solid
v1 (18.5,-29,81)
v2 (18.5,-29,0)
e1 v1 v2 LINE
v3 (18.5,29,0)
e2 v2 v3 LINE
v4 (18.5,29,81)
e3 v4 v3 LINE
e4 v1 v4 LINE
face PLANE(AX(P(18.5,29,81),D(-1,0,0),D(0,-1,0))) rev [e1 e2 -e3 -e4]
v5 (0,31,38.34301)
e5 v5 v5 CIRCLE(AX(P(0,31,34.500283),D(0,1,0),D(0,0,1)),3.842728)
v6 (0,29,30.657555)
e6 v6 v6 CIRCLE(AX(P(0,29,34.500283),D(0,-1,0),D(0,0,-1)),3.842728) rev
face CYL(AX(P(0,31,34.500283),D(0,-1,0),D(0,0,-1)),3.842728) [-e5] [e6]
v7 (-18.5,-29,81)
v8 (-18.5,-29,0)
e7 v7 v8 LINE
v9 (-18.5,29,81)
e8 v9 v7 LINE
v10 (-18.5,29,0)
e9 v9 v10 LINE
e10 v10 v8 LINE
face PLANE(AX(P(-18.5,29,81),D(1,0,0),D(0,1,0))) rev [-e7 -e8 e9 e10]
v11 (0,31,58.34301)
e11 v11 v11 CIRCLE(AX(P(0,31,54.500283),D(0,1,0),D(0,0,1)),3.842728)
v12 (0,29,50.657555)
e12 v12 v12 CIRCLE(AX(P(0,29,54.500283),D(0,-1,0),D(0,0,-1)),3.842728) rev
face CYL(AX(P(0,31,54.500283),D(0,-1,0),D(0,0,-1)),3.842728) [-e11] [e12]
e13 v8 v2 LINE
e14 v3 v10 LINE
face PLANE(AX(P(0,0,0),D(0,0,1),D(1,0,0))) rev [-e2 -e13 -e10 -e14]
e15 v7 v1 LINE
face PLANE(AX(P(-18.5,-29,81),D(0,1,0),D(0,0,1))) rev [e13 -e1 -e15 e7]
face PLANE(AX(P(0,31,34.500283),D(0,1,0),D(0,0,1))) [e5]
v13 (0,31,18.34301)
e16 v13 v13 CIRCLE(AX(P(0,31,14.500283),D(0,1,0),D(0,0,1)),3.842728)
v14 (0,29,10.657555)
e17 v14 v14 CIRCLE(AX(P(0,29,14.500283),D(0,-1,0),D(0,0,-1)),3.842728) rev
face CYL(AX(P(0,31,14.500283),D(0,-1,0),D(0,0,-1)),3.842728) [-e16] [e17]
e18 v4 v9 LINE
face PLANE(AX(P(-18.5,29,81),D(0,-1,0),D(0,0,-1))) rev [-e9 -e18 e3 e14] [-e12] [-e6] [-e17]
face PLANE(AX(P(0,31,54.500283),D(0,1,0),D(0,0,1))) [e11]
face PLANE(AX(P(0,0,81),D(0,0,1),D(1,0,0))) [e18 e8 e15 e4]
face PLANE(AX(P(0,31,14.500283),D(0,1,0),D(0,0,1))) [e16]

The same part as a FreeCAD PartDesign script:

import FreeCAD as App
import Part
import Sketcher

V = App.Vector
Q = App.Units.Quantity


def add_polygon(sketch, points):
    """Adds a closed chain of lines whose ends are joined by coincident constraints."""
    first, n = sketch.GeometryCount, len(points)
    for a, b in zip(points, points[1:] + points[:1]):
        sketch.addGeometry(Part.LineSegment(App.Vector(*a, 0), App.Vector(*b, 0)), False)
    for i in range(n):
        sketch.addConstraint(Sketcher.Constraint("Coincident", first + i, 2, first + (i + 1) % n, 1))

doc = App.newDocument("Part")
params = doc.addObject("Spreadsheet::Sheet", "Params")
for row, (alias, value) in enumerate([
    ("sketch1_width", "37 mm"),
    ("sketch1_height", "58 mm"),
    ("pad1_length", "81 mm"),
    ("pad2_length", "2 mm"),
], start=1):
    params.set(f"A{row}", alias)
    params.set(f"B{row}", "=" + value)
    params.setAlias(f"B{row}", alias)

body = doc.addObject("PartDesign::Body", "Body")

# Sketch on XY plane
sketch1 = body.newObject("Sketcher::SketchObject", "Sketch")
sketch1.AttachmentSupport = (doc.getObject("XY_Plane"), [""])
sketch1.MapMode = "FlatFace"
add_polygon(sketch1, [(-18.5, 29), (-18.5, -29), (18.5, -29), (18.5, 29)])  # lines 0-3
sketch1.addConstraint([
    Sketcher.Constraint("Vertical", 0),
    Sketcher.Constraint("Horizontal", 1),
    Sketcher.Constraint("Vertical", 2),
    Sketcher.Constraint("Horizontal", 3),
    Sketcher.Constraint("Symmetric", 0, 2, 2, 2, -1, 1),
    Sketcher.Constraint("DistanceX", 1, 1, 1, 2, Q("37 mm")),
    Sketcher.Constraint("DistanceY", 0, 2, 0, 1, Q("58 mm")),
])
sketch1.setExpression("Constraints[9]", "Params.sketch1_width")
sketch1.setExpression("Constraints[10]", "Params.sketch1_height")
pad1 = body.newObject("PartDesign::Pad", "Pad")
pad1.Profile = sketch1
pad1.setExpression("Length", "Params.pad1_length")

# Sketch on XZ plane
sketch2 = body.newObject("Sketcher::SketchObject", "Sketch001")
sketch2.AttachmentSupport = (doc.getObject("XZ_Plane"), [""])
sketch2.MapMode = "FlatFace"
sketch2.AttachmentOffset = App.Placement(V(0, 0, -29), App.Rotation())
sketch2.addGeometry([
    Part.Circle(V(0, 14.500283, 0), V(0, 0, 1), 3.842728),
    Part.Circle(V(0, 34.500283, 0), V(0, 0, 1), 3.842728),
    Part.Circle(V(0, 54.500283, 0), V(0, 0, 1), 3.842728),
], False)
sketch2.addConstraint([
    Sketcher.Constraint("Equal", 0, 1),
    Sketcher.Constraint("Equal", 1, 2),
    Sketcher.Constraint("PointOnObject", 0, 3, -2),
    Sketcher.Constraint("PointOnObject", 1, 3, -2),
    Sketcher.Constraint("PointOnObject", 2, 3, -2),
    Sketcher.Constraint("DistanceY", 0, 3, 1, 3, Q("20 mm")),
    Sketcher.Constraint("DistanceY", 1, 3, 2, 3, Q("20 mm")),
    Sketcher.Constraint("Diameter", 0, Q("7.685455 mm")),
    Sketcher.Constraint("DistanceY", -1, 1, 0, 3, Q("14.500283 mm")),
])
pad2 = body.newObject("PartDesign::Pad", "Pad001")
pad2.Profile = sketch2
pad2.setExpression("Length", "Params.pad2_length")
pad2.Reversed = True

doc.recompute()
